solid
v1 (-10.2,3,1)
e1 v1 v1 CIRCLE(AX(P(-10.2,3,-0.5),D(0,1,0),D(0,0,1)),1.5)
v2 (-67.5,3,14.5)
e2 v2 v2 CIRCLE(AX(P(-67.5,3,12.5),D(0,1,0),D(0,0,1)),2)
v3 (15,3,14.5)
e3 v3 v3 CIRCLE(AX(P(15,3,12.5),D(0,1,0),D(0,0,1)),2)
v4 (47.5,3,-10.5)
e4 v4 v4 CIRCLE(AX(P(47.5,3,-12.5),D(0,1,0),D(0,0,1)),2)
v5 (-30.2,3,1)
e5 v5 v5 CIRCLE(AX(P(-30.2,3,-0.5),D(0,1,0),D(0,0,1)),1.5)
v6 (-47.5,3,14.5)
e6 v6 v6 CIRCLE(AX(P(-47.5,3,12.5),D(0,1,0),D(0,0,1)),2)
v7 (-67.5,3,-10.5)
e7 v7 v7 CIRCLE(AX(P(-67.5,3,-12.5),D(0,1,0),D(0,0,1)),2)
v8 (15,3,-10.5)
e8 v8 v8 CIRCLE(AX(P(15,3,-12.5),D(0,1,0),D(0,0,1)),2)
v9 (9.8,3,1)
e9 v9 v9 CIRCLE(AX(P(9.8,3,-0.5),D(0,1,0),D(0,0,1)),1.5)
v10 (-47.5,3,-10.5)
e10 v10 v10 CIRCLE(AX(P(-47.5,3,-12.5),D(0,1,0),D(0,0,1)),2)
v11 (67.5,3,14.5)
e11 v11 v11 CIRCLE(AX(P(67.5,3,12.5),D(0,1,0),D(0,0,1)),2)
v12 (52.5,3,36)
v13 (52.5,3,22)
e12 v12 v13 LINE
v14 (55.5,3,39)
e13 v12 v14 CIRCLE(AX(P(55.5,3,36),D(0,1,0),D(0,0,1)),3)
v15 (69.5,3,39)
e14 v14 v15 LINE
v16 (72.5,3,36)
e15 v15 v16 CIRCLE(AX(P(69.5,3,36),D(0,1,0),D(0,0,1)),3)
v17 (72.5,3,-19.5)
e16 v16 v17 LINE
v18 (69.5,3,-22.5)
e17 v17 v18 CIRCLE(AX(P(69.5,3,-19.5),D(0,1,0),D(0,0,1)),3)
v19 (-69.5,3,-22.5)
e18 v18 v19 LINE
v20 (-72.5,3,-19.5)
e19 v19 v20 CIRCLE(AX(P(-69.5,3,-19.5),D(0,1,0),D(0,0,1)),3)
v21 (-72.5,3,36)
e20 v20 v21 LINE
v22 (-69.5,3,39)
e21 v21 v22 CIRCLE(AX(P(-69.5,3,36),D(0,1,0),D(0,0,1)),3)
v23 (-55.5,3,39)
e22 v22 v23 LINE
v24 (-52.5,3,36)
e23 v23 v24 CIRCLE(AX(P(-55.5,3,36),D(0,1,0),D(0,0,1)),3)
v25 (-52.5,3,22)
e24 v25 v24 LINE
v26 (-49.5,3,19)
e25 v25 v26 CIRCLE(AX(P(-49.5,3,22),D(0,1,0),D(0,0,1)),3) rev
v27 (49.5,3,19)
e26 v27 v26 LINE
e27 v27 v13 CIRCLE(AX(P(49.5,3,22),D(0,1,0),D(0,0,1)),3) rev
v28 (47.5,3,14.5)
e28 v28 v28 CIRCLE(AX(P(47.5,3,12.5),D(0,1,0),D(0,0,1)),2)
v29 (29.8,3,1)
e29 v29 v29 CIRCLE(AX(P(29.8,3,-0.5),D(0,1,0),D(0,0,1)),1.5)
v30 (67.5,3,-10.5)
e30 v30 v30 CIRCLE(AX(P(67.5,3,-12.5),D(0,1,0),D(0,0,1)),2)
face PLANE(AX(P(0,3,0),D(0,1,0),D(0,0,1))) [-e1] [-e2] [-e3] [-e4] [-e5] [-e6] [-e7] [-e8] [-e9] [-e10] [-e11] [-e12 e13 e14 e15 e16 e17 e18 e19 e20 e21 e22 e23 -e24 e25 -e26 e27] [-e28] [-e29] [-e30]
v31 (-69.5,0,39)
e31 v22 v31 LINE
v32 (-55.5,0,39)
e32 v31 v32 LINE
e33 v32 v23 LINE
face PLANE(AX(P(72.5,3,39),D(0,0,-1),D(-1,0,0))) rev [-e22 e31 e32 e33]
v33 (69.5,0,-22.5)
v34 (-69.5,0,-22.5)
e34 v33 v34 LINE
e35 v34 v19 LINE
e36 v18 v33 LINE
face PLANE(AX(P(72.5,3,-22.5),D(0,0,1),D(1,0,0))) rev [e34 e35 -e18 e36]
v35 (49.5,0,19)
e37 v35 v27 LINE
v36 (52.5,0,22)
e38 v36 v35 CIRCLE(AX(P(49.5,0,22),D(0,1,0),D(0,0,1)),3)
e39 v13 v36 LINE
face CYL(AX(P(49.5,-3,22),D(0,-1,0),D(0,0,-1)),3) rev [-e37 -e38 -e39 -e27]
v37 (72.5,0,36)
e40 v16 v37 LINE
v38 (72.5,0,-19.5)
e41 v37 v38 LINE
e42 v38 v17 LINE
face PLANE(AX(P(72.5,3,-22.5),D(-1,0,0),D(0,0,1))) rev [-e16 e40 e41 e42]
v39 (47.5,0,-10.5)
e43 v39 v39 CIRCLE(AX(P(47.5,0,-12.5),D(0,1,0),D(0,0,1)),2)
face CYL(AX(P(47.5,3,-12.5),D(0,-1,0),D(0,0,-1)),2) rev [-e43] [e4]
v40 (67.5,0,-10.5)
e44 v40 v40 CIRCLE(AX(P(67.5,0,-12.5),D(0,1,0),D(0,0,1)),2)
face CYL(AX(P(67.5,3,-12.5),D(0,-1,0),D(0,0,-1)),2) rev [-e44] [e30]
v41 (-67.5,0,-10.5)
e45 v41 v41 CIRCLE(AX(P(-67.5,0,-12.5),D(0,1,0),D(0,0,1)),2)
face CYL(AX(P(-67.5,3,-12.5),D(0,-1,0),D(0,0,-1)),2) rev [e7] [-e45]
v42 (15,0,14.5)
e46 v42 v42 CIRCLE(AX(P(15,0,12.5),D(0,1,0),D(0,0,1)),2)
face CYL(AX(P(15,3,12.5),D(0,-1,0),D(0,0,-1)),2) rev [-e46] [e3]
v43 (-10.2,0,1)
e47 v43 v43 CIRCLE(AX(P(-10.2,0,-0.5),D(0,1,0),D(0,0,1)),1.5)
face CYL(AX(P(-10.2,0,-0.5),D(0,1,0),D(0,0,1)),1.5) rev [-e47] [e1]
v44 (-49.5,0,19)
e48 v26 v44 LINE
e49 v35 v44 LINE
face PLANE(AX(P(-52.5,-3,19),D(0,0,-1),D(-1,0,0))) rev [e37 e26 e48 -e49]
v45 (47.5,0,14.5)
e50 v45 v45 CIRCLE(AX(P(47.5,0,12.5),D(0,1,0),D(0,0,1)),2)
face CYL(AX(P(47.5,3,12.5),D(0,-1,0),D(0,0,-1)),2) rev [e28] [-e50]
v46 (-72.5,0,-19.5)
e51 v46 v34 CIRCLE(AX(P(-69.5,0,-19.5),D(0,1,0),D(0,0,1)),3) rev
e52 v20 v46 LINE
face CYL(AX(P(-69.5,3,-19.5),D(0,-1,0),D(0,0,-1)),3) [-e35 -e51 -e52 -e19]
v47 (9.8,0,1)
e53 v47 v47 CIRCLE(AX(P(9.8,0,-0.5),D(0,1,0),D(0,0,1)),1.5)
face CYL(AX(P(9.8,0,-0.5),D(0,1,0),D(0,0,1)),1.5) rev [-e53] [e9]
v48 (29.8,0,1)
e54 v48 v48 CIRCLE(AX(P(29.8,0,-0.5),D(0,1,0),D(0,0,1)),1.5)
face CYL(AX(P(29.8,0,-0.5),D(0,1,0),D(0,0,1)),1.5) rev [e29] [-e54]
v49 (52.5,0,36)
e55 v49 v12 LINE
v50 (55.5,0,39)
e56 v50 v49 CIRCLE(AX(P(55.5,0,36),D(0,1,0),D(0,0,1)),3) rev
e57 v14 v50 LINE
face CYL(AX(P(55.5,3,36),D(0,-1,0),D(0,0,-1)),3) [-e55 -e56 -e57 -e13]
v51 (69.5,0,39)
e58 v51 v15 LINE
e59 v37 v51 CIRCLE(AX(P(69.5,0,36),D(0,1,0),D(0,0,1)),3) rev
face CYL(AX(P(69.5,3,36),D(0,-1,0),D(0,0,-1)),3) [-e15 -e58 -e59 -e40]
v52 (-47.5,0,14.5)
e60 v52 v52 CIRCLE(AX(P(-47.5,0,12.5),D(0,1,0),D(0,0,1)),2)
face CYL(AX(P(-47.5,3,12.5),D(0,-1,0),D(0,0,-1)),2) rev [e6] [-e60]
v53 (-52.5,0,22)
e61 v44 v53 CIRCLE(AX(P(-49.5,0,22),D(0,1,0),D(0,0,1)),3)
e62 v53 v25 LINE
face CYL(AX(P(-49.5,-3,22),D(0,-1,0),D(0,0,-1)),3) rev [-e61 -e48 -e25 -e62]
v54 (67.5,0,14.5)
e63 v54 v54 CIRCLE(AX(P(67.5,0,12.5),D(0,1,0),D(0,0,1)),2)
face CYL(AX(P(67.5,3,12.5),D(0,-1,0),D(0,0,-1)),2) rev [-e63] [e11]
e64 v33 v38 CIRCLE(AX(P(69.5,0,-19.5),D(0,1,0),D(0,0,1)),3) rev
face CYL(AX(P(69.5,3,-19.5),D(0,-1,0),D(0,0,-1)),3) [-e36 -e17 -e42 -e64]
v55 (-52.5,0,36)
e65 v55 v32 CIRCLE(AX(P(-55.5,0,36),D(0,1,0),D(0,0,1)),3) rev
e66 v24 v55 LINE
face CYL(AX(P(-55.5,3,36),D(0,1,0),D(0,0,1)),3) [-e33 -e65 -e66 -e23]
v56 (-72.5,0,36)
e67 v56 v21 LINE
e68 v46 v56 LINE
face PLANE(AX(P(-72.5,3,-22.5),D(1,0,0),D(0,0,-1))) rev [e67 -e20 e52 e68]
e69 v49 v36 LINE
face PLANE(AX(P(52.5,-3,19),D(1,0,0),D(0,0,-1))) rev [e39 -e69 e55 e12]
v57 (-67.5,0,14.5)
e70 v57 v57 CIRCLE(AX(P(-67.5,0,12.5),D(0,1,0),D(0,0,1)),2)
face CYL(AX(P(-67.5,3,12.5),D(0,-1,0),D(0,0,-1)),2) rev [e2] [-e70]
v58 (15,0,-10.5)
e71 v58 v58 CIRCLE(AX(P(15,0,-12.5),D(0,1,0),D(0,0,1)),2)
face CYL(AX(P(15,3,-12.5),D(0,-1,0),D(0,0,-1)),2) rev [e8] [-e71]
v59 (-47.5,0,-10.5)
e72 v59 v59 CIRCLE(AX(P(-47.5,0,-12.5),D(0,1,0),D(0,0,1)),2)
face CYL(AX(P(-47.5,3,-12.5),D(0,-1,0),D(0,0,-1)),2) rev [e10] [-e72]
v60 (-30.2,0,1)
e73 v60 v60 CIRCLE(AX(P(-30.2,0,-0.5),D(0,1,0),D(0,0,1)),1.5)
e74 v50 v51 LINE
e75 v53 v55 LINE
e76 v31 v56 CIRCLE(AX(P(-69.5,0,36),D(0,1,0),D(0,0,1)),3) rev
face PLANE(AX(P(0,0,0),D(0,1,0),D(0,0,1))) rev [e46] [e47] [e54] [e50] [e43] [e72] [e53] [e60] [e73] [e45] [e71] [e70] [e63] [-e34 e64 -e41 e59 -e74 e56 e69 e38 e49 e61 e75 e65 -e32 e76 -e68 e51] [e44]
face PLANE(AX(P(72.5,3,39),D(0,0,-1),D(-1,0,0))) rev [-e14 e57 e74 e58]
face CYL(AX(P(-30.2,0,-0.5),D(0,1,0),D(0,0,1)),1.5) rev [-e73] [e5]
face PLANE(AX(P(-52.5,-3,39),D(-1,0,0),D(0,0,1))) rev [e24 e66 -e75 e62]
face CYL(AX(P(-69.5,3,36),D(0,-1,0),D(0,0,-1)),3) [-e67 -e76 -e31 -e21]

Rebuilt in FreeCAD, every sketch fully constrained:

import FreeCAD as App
import Part
import Sketcher
from FreeCAD import Vector


def edges_at(feature, points):
    """Names of the edges that pass closest to the given points."""
    edges = feature.Shape.Edges
    near = lambda p: min(range(len(edges)), key=lambda i: edges[i].distToShape(Part.Vertex(*p))[0])
    return sorted({f"Edge{near(p) + 1}" for p in points})

doc = App.newDocument("Part")
body = doc.addObject("PartDesign::Body", "Body")

# Sketch on XZ plane
sketch1 = body.newObject("Sketcher::SketchObject", "Sketch")
sketch1.AttachmentSupport = (doc.getObject("XZ_Plane"), [""])
sketch1.MapMode = "FlatFace"
sketch1.addGeometry([
    Part.LineSegment(Vector(-72.5, -22.5, 0), Vector(-72.5, 39, 0)),  # 0
    Part.LineSegment(Vector(-72.5, 39, 0), Vector(72.5, 39, 0)),  # 1
    Part.LineSegment(Vector(72.5, 39, 0), Vector(72.5, -22.5, 0)),  # 2
    Part.LineSegment(Vector(72.5, -22.5, 0), Vector(-72.5, -22.5, 0)),  # 3
    Part.Circle(Vector(-67.5, 12.5, 0), Vector(0, 0, 1), 2),  # 4
    Part.Circle(Vector(-47.5, 12.5, 0), Vector(0, 0, 1), 2),  # 5
    Part.Circle(Vector(15, 12.5, 0), Vector(0, 0, 1), 2),  # 6
    Part.Circle(Vector(47.5, 12.5, 0), Vector(0, 0, 1), 2),  # 7
    Part.Circle(Vector(67.5, 12.5, 0), Vector(0, 0, 1), 2),  # 8
    Part.Circle(Vector(-67.5, -12.5, 0), Vector(0, 0, 1), 2),  # 9
    Part.Circle(Vector(-47.5, -12.5, 0), Vector(0, 0, 1), 2),  # 10
    Part.Circle(Vector(15, -12.5, 0), Vector(0, 0, 1), 2),  # 11
    Part.Circle(Vector(47.5, -12.5, 0), Vector(0, 0, 1), 2),  # 12
    Part.Circle(Vector(67.5, -12.5, 0), Vector(0, 0, 1), 2),  # 13
], False)
sketch1.addConstraint([
    Sketcher.Constraint("Coincident", 0, 2, 1, 1),
    Sketcher.Constraint("Coincident", 1, 2, 2, 1),
    Sketcher.Constraint("Coincident", 2, 2, 3, 1),
    Sketcher.Constraint("Coincident", 3, 2, 0, 1),
    Sketcher.Constraint("Vertical", 0),
    Sketcher.Constraint("Horizontal", 1),
    Sketcher.Constraint("Vertical", 2),
    Sketcher.Constraint("Horizontal", 3),
    Sketcher.Constraint("Equal", 4, 5),
    Sketcher.Constraint("Equal", 5, 6),
    Sketcher.Constraint("Equal", 6, 7),
    Sketcher.Constraint("Equal", 7, 8),
    Sketcher.Constraint("Equal", 8, 9),
    Sketcher.Constraint("Equal", 9, 10),
    Sketcher.Constraint("Equal", 10, 11),
    Sketcher.Constraint("Equal", 11, 12),
    Sketcher.Constraint("Equal", 12, 13),
    Sketcher.Constraint("Symmetric", 8, 3, 9, 3, -1, 1),
    Sketcher.Constraint("Symmetric", 7, 3, 10, 3, -1, 1),
    Sketcher.Constraint("Symmetric", 5, 3, 12, 3, -1, 1),
    Sketcher.Constraint("Symmetric", 4, 3, 13, 3, -1, 1),
    Sketcher.Constraint("Symmetric", 5, 3, 7, 3, -2),
    Sketcher.Constraint("Symmetric", 4, 3, 8, 3, -2),
    Sketcher.Constraint("Symmetric", 6, 3, 11, 3, -1),
    Sketcher.Constraint("Horizontal", 4, 3, 5, 3),
    Sketcher.Constraint("Horizontal", 5, 3, 6, 3),
    Sketcher.Constraint("Diameter", 4, 4.0),
    Sketcher.Constraint("DistanceX", 1, 1, 1, 2, 145.0),
    Sketcher.Constraint("DistanceY", 0, 1, 0, 2, 61.5),
    Sketcher.Constraint("DistanceX", -1, 1, 6, 3, 15.0),
    Sketcher.Constraint("DistanceY", -1, 1, 0, 2, 39.0),
    Sketcher.Constraint("DistanceX", 4, 3, 5, 3, 20.0),
    Sketcher.Constraint("DistanceX", 5, 3, 7, 3, 95.0),
    Sketcher.Constraint("DistanceY", 9, 3, 4, 3, 25.0),
    Sketcher.Constraint("DistanceX", 0, 2, 4, 3, 5.0),
])
pad1 = body.newObject("PartDesign::Pad", "Pad")
pad1.Profile = sketch1
pad1.Length = 3
pad1.Reversed = True
doc.recompute()

fillet = body.newObject("PartDesign::Fillet", "Fillet")
fillet.Base = (pad1, edges_at(pad1, [
    (72.5, 1.5, -22.5),
    (72.5, 1.5, 39),
    (-72.5, 1.5, 39),
    (-72.5, 1.5, -22.5),
]))
fillet.Radius = 3

# Sketch on XZ plane
sketch2 = body.newObject("Sketcher::SketchObject", "Sketch001")
sketch2.AttachmentSupport = (doc.getObject("XZ_Plane"), [""])
sketch2.MapMode = "FlatFace"
sketch2.AttachmentOffset = App.Placement(Vector(0, 0, -3), App.Rotation())
sketch2.addGeometry([
    Part.LineSegment(Vector(-52, 19, 0), Vector(-52, 39, 0)),
    Part.LineSegment(Vector(-52, 39, 0), Vector(52, 39, 0)),
    Part.LineSegment(Vector(52, 39, 0), Vector(52, 19, 0)),
    Part.LineSegment(Vector(52, 19, 0), Vector(-52, 19, 0)),
], False)
sketch2.addConstraint([
    Sketcher.Constraint("Coincident", 0, 2, 1, 1),
    Sketcher.Constraint("Coincident", 1, 2, 2, 1),
    Sketcher.Constraint("Coincident", 2, 2, 3, 1),
    Sketcher.Constraint("Coincident", 3, 2, 0, 1),
    Sketcher.Constraint("Vertical", 0),
    Sketcher.Constraint("Horizontal", 1),
    Sketcher.Constraint("Vertical", 2),
    Sketcher.Constraint("Horizontal", 3),
    Sketcher.Constraint("DistanceX", 1, 1, 1, 2, 105.0),
    Sketcher.Constraint("DistanceY", 0, 1, 0, 2, 20.0),
    Sketcher.Constraint("DistanceY", -1, 1, 0, 2, 39.0),
    Sketcher.Constraint("DistanceX", 0, 2, -1, 1, 52.5),
])
pocket1 = body.newObject("PartDesign::Pocket", "Pocket")
pocket1.Profile = sketch2
pocket1.Length = 6
pocket1.Reversed = True

# Sketch on XZ plane
sketch3 = body.newObject("Sketcher::SketchObject", "Sketch002")
sketch3.AttachmentSupport = (doc.getObject("XZ_Plane"), [""])
sketch3.MapMode = "FlatFace"
sketch3.AttachmentOffset = App.Placement(Vector(0, 0, -3), App.Rotation())
sketch3.addGeometry([
    Part.Circle(Vector(-30.2, -0.5, 0), Vector(0, 0, 1), 1.5),
    Part.Circle(Vector(-10.2, -0.5, 0), Vector(0, 0, 1), 1.5),
    Part.Circle(Vector(9.8, -0.5, 0), Vector(0, 0, 1), 1.5),
    Part.Circle(Vector(29.8, -0.5, 0), Vector(0, 0, 1), 1.5),
], False)
sketch3.addConstraint([
    Sketcher.Constraint("Equal", 0, 1),
    Sketcher.Constraint("Equal", 1, 2),
    Sketcher.Constraint("Equal", 2, 3),
    Sketcher.Constraint("Horizontal", 0, 3, 1, 3),
    Sketcher.Constraint("Horizontal", 1, 3, 2, 3),
    Sketcher.Constraint("Horizontal", 2, 3, 3, 3),
    Sketcher.Constraint("Diameter", 0, 3.0),
    Sketcher.Constraint("DistanceX", 0, 3, 1, 3, 20.0),
    Sketcher.Constraint("DistanceX", 1, 3, 2, 3, 20.0),
    Sketcher.Constraint("DistanceX", 2, 3, 3, 3, 20.0),
    Sketcher.Constraint("DistanceX", 0, 3, -1, 1, 30.2),
    Sketcher.Constraint("DistanceY", 0, 3, -1, 1, 0.5),
])
pocket2 = body.newObject("PartDesign::Pocket", "Pocket001")
pocket2.Profile = sketch3
pocket2.Type = "ThroughAll"
pocket2.Reversed = True
doc.recompute()

fillet2 = body.newObject("PartDesign::Fillet", "Fillet001")
fillet2.Base = (pocket2, edges_at(pocket2, [
    (52.5, 1.5, 39),
    (-52.5, 1.5, 39),
    (-52.5, 1.5, 19),
    (52.5, 1.5, 19),
]))
fillet2.Radius = 3

doc.recompute()
